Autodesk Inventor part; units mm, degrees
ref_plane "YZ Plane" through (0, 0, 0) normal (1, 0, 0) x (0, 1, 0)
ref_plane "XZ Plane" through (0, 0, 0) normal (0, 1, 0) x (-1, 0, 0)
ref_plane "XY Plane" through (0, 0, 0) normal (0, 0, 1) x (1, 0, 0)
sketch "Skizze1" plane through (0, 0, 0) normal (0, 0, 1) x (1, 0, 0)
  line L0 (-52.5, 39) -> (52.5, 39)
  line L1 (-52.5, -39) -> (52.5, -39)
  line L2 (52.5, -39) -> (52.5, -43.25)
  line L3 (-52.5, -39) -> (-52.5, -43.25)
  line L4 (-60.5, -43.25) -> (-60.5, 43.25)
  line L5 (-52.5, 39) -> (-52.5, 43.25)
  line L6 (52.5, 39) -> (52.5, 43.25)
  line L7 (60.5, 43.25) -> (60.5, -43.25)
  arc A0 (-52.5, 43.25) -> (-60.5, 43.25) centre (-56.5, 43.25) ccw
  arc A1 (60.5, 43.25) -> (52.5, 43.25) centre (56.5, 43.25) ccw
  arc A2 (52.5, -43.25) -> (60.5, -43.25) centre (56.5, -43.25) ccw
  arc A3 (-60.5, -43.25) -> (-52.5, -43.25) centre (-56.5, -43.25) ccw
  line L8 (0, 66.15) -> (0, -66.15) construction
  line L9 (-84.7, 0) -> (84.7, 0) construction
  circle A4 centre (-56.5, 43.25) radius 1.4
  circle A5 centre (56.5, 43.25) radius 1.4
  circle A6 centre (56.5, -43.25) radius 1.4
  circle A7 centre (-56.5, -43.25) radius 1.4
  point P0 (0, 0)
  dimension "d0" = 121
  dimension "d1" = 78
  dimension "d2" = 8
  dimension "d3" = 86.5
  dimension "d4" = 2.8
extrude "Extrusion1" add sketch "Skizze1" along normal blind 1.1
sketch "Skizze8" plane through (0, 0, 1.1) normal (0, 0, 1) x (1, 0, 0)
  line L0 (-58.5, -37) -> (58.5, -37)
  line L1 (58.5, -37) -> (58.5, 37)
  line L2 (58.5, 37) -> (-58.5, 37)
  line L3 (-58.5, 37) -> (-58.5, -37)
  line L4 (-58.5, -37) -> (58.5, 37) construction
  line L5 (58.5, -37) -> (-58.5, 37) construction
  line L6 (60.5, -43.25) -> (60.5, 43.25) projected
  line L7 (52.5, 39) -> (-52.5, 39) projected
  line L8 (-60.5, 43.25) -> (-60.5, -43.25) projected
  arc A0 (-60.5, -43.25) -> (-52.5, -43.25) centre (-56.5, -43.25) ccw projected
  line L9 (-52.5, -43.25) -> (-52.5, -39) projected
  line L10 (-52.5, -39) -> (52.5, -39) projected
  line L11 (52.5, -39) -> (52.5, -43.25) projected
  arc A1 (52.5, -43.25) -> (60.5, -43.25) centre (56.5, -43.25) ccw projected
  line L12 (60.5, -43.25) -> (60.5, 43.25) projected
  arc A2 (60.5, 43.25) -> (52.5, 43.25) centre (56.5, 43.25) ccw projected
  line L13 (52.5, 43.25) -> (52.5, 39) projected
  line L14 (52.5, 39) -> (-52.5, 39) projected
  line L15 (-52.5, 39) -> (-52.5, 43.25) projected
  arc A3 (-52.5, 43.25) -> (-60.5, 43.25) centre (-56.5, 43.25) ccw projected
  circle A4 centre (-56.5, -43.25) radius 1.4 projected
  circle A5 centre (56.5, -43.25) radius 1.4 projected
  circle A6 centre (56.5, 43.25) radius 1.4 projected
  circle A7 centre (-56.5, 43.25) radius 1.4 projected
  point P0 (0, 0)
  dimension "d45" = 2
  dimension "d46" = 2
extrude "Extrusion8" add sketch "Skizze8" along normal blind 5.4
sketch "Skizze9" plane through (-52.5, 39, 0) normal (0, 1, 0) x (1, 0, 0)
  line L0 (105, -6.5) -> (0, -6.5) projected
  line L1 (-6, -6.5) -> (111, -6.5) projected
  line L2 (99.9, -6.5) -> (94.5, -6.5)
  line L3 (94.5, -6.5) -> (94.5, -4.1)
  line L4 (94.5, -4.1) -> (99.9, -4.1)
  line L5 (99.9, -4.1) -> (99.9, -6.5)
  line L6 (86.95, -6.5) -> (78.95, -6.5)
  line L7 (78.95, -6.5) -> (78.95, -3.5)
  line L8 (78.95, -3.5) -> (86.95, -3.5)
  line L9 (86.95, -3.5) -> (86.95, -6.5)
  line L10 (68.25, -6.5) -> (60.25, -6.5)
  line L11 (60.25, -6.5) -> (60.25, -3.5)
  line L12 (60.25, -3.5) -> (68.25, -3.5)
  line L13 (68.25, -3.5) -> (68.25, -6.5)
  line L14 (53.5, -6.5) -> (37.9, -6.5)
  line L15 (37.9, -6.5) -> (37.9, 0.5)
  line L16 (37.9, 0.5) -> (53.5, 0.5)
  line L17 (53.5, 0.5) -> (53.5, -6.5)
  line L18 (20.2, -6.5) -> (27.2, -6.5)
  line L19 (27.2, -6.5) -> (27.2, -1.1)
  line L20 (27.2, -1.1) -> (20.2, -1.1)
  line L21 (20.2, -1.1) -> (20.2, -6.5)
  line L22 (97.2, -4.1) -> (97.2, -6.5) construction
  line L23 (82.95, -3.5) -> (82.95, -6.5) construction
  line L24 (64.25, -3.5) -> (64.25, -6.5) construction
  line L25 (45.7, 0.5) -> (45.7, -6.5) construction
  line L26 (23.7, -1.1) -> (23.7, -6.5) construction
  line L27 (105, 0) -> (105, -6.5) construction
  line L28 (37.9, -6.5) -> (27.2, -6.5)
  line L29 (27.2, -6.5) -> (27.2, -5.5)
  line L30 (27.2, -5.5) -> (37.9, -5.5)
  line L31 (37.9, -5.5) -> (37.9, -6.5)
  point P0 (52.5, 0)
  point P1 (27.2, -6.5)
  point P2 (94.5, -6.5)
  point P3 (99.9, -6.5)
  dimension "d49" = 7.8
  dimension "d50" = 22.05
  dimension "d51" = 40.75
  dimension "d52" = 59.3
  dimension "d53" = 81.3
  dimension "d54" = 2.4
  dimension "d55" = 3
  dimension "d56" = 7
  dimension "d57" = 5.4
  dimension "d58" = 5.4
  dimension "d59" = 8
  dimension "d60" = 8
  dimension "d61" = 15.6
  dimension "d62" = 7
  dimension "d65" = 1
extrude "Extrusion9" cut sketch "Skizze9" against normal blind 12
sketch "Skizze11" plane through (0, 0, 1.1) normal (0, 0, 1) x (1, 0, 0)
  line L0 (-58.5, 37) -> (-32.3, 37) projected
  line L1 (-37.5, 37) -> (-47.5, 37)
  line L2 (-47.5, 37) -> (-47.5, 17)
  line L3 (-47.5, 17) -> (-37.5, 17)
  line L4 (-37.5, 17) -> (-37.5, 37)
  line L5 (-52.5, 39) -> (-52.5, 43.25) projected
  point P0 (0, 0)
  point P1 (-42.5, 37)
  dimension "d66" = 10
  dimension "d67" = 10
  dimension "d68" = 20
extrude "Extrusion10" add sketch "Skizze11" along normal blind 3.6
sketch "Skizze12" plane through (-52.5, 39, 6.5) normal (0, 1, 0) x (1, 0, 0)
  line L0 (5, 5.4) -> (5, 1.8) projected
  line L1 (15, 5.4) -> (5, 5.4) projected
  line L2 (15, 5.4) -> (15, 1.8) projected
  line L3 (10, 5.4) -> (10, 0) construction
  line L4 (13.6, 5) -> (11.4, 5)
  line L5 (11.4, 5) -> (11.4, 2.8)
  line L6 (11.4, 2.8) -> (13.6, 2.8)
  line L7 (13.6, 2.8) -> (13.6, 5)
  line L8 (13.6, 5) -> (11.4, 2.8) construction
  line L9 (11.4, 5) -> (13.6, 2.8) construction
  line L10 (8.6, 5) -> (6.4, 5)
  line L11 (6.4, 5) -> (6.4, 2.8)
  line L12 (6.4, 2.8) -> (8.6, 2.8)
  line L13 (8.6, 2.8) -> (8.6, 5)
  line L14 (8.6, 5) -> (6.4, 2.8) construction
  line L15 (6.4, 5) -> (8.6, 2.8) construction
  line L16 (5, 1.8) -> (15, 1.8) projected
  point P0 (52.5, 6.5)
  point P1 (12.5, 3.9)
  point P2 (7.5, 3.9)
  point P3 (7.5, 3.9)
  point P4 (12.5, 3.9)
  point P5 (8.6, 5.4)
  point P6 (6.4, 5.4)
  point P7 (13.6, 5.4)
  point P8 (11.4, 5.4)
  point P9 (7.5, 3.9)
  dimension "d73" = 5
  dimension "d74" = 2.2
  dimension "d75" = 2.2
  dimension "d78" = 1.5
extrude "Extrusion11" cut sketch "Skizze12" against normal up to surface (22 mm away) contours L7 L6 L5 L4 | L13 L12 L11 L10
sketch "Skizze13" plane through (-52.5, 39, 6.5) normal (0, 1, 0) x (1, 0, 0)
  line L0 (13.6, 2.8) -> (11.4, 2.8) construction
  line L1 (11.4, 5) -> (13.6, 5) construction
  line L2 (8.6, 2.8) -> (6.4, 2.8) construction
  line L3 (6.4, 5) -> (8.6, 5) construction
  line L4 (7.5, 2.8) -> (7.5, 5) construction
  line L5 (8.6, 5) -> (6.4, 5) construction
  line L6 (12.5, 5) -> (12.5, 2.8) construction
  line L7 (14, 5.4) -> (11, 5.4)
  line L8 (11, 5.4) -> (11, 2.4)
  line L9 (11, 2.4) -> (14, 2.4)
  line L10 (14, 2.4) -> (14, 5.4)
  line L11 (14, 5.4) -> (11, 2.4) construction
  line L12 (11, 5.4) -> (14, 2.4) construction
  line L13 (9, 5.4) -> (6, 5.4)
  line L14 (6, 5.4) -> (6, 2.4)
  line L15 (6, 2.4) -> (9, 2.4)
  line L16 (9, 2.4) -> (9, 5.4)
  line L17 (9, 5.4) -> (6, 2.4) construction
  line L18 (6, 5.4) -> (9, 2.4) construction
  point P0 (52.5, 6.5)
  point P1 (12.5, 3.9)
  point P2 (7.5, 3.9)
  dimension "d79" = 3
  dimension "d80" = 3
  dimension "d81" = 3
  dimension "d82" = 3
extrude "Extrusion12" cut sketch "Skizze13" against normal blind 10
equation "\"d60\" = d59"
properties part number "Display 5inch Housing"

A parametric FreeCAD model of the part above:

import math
import FreeCAD as App
import Part
import Sketcher
Q = App.Units.Quantity

doc = App.newDocument("Part")
params = doc.addObject("Spreadsheet::Sheet", "Params")
for row, (alias, value) in enumerate([
    ("sketch1_radius", "4 mm"),
    ("sketch1_diameter", "2.8 mm"),
    ("sketch1_height", "86.5 mm"),
    ("sketch1_width", "105 mm"),
    ("pad1_length", "1.1 mm"),
    ("sketch2_radius", "4 mm"),
    ("sketch2_diameter", "2.8 mm"),
    ("sketch2_width", "105 mm"),
    ("sketch2_height", "74 mm"),
    ("sketch2_height2", "86.5 mm"),
    ("pad2_length", "5.4 mm"),
    ("sketch3_width", "7 mm"),
    ("sketch3_width2", "8 mm"),
    ("sketch3_height", "3 mm"),
    ("sketch3_width3", "15.6 mm"),
    ("sketch3_width4", "5.4 mm"),
    ("pocket1_length", "12 mm"),
    ("sketch4_width", "10 mm"),
    ("sketch4_height", "20 mm"),
    ("pad3_length", "3.6 mm"),
    ("sketch5_width", "2.2 mm"),
    ("pocket2_length", "22 mm"),
    ("sketch6_width", "3 mm"),
    ("pocket3_length", "10 mm"),
], start=1):
    params.set(f"A{row}", alias)
    params.set(f"B{row}", "=" + value)
    params.setAlias(f"B{row}", alias)

body = doc.addObject("PartDesign::Body", "Body")

sketch1 = body.newObject("Sketcher::SketchObject", "Sketch")
sketch1.AttachmentSupport = (doc.getObject("XY_Plane"), [""])
sketch1.MapMode = "FlatFace"
sketch1.addGeometry([
    Part.LineSegment(App.Vector(52.5, 39, 0), App.Vector(-52.5, 39, 0)),
    Part.LineSegment(App.Vector(-52.5, 39, 0), App.Vector(-52.5, 43.2, 0)),
    Part.ArcOfCircle(Part.Circle(App.Vector(-56.5, 43.2, 0), App.Vector(0, 0, 1), 4), math.radians(0), math.radians(180)),
    Part.LineSegment(App.Vector(-60.5, 43.2, 0), App.Vector(-60.5, -43.2, 0)),
    Part.ArcOfCircle(Part.Circle(App.Vector(-56.5, -43.2, 0), App.Vector(0, 0, 1), 4), math.radians(180), math.radians(360)),
    Part.LineSegment(App.Vector(-52.5, -43.2, 0), App.Vector(-52.5, -39, 0)),
    Part.LineSegment(App.Vector(-52.5, -39, 0), App.Vector(52.5, -39, 0)),
    Part.LineSegment(App.Vector(52.5, -39, 0), App.Vector(52.5, -43.2, 0)),
    Part.ArcOfCircle(Part.Circle(App.Vector(56.5, -43.2, 0), App.Vector(0, 0, 1), 4), math.radians(180), math.radians(360)),
    Part.LineSegment(App.Vector(60.5, -43.2, 0), App.Vector(60.5, 43.2, 0)),
    Part.ArcOfCircle(Part.Circle(App.Vector(56.5, 43.2, 0), App.Vector(0, 0, 1), 4), math.radians(0), math.radians(180)),
    Part.LineSegment(App.Vector(52.5, 43.2, 0), App.Vector(52.5, 39, 0)),
    Part.Circle(App.Vector(-56.5, -43.2, 0), App.Vector(0, 0, 1), 1.4),
    Part.Circle(App.Vector(56.5, -43.2, 0), App.Vector(0, 0, 1), 1.4),
    Part.Circle(App.Vector(-56.5, 43.2, 0), App.Vector(0, 0, 1), 1.4),
    Part.Circle(App.Vector(56.5, 43.2, 0), App.Vector(0, 0, 1), 1.4),
], False)
sketch1.addConstraint([
    Sketcher.Constraint("Coincident", 0, 2, 1, 1),
    Sketcher.Constraint("Tangent", 1, 2, 2, 1),
    Sketcher.Constraint("Tangent", 2, 2, 3, 1),
    Sketcher.Constraint("Tangent", 3, 2, 4, 1),
    Sketcher.Constraint("Tangent", 4, 2, 5, 1),
    Sketcher.Constraint("Coincident", 5, 2, 6, 1),
    Sketcher.Constraint("Coincident", 6, 2, 7, 1),
    Sketcher.Constraint("Tangent", 7, 2, 8, 1),
    Sketcher.Constraint("Tangent", 8, 2, 9, 1),
    Sketcher.Constraint("Tangent", 9, 2, 10, 1),
    Sketcher.Constraint("Tangent", 10, 2, 11, 1),
    Sketcher.Constraint("Coincident", 11, 2, 0, 1),
    Sketcher.Constraint("Horizontal", 0),
    Sketcher.Constraint("Vertical", 1),
    Sketcher.Constraint("Vertical", 3),
    Sketcher.Constraint("Vertical", 5),
    Sketcher.Constraint("Horizontal", 6),
    Sketcher.Constraint("Vertical", 7),
    Sketcher.Constraint("Vertical", 9),
    Sketcher.Constraint("Vertical", 11),
    Sketcher.Constraint("Coincident", 12, 3, 4, 3),
    Sketcher.Constraint("Coincident", 13, 3, 8, 3),
    Sketcher.Constraint("Coincident", 14, 3, 2, 3),
    Sketcher.Constraint("Coincident", 15, 3, 10, 3),
    Sketcher.Constraint("Equal", 2, 4),
    Sketcher.Constraint("Equal", 4, 8),
    Sketcher.Constraint("Equal", 8, 10),
    Sketcher.Constraint("Equal", 12, 13),
    Sketcher.Constraint("Equal", 13, 14),
    Sketcher.Constraint("Equal", 14, 15),
    Sketcher.Constraint("Symmetric", 2, 3, 8, 3, -1, 1),
    Sketcher.Constraint("Horizontal", 4, 3, 8, 3),
    Sketcher.Constraint("Horizontal", 2, 3, 10, 3),
    Sketcher.Constraint("Equal", 1, 5),
    Sketcher.Constraint("Radius", 2, Q("4 mm")),
    Sketcher.Constraint("Diameter", 12, Q("2.8 mm")),
    Sketcher.Constraint("DistanceY", 3, 2, 3, 1, Q("86.5 mm")),
    Sketcher.Constraint("DistanceY", 5, 2, 0, 2, Q("78 mm")),
    Sketcher.Constraint("DistanceX", 0, 2, 0, 1, Q("105 mm")),
])
sketch1.setExpression("Constraints[34]", "Params.sketch1_radius")
sketch1.setExpression("Constraints[35]", "Params.sketch1_diameter")
sketch1.setExpression("Constraints[36]", "Params.sketch1_height")
sketch1.setExpression("Constraints[38]", "Params.sketch1_width")
pad1 = body.newObject("PartDesign::Pad", "Pad")
pad1.Profile = sketch1
pad1.setExpression("Length", "Params.pad1_length")

sketch2 = body.newObject("Sketcher::SketchObject", "Sketch001")
sketch2.AttachmentSupport = (doc.getObject("XY_Plane"), [""])
sketch2.MapMode = "FlatFace"
sketch2.AttachmentOffset = App.Placement(App.Vector(0, 0, 1.1), App.Rotation())
sketch2.addGeometry([
    Part.ArcOfCircle(Part.Circle(App.Vector(56.5, -43.2, 0), App.Vector(0, 0, 1), 4), math.radians(180), math.radians(360)),
    Part.LineSegment(App.Vector(60.5, -43.2, 0), App.Vector(60.5, 43.2, 0)),
    Part.ArcOfCircle(Part.Circle(App.Vector(56.5, 43.2, 0), App.Vector(0, 0, 1), 4), math.radians(0), math.radians(180)),
    Part.LineSegment(App.Vector(52.5, 43.2, 0), App.Vector(52.5, 39, 0)),
    Part.LineSegment(App.Vector(52.5, 39, 0), App.Vector(-52.5, 39, 0)),
    Part.LineSegment(App.Vector(-52.5, 39, 0), App.Vector(-52.5, 43.2, 0)),
    Part.ArcOfCircle(Part.Circle(App.Vector(-56.5, 43.2, 0), App.Vector(0, 0, 1), 4), math.radians(0), math.radians(180)),
    Part.LineSegment(App.Vector(-60.5, 43.2, 0), App.Vector(-60.5, -43.2, 0)),
    Part.ArcOfCircle(Part.Circle(App.Vector(-56.5, -43.2, 0), App.Vector(0, 0, 1), 4), math.radians(180), math.radians(360)),
    Part.LineSegment(App.Vector(-52.5, -43.2, 0), App.Vector(-52.5, -39, 0)),
    Part.LineSegment(App.Vector(-52.5, -39, 0), App.Vector(52.5, -39, 0)),
    Part.LineSegment(App.Vector(52.5, -39, 0), App.Vector(52.5, -43.2, 0)),
    Part.Circle(App.Vector(-56.5, -43.2, 0), App.Vector(0, 0, 1), 1.4),
    Part.Circle(App.Vector(56.5, -43.2, 0), App.Vector(0, 0, 1), 1.4),
    Part.Circle(App.Vector(-56.5, 43.2, 0), App.Vector(0, 0, 1), 1.4),
    Part.LineSegment(App.Vector(58.5, -37, 0), App.Vector(-58.5, -37, 0)),
    Part.LineSegment(App.Vector(-58.5, -37, 0), App.Vector(-58.5, 37, 0)),
    Part.LineSegment(App.Vector(-58.5, 37, 0), App.Vector(58.5, 37, 0)),
    Part.LineSegment(App.Vector(58.5, 37, 0), App.Vector(58.5, -37, 0)),
    Part.Circle(App.Vector(56.5, 43.2, 0), App.Vector(0, 0, 1), 1.4),
], False)
sketch2.addConstraint([
    Sketcher.Constraint("Tangent", 0, 2, 1, 1),
    Sketcher.Constraint("Tangent", 1, 2, 2, 1),
    Sketcher.Constraint("Tangent", 2, 2, 3, 1),
    Sketcher.Constraint("Coincident", 3, 2, 4, 1),
    Sketcher.Constraint("Coincident", 4, 2, 5, 1),
    Sketcher.Constraint("Tangent", 5, 2, 6, 1),
    Sketcher.Constraint("Tangent", 6, 2, 7, 1),
    Sketcher.Constraint("Tangent", 7, 2, 8, 1),
    Sketcher.Constraint("Tangent", 8, 2, 9, 1),
    Sketcher.Constraint("Coincident", 9, 2, 10, 1),
    Sketcher.Constraint("Coincident", 10, 2, 11, 1),
    Sketcher.Constraint("Tangent", 11, 2, 0, 1),
    Sketcher.Constraint("Coincident", 15, 2, 16, 1),
    Sketcher.Constraint("Coincident", 16, 2, 17, 1),
    Sketcher.Constraint("Coincident", 17, 2, 18, 1),
    Sketcher.Constraint("Coincident", 18, 2, 15, 1),
    Sketcher.Constraint("Vertical", 1),
    Sketcher.Constraint("Vertical", 3),
    Sketcher.Constraint("Horizontal", 4),
    Sketcher.Constraint("Vertical", 5),
    Sketcher.Constraint("Vertical", 7),
    Sketcher.Constraint("Vertical", 9),
    Sketcher.Constraint("Horizontal", 10),
    Sketcher.Constraint("Vertical", 11),
    Sketcher.Constraint("Horizontal", 15),
    Sketcher.Constraint("Vertical", 16),
    Sketcher.Constraint("Horizontal", 17),
    Sketcher.Constraint("Vertical", 18),
    Sketcher.Constraint("Coincident", 12, 3, 8, 3),
    Sketcher.Constraint("Coincident", 13, 3, 0, 3),
    Sketcher.Constraint("Coincident", 14, 3, 6, 3),
    Sketcher.Constraint("Coincident", 19, 3, 2, 3),
    Sketcher.Constraint("Equal", 0, 2),
    Sketcher.Constraint("Equal", 2, 6),
    Sketcher.Constraint("Equal", 6, 8),
    Sketcher.Constraint("Equal", 12, 13),
    Sketcher.Constraint("Equal", 13, 14),
    Sketcher.Constraint("Equal", 14, 19),
    Sketcher.Constraint("Symmetric", 0, 3, 6, 3, -1, 1),
    Sketcher.Constraint("Symmetric", 15, 2, 17, 2, -1, 1),
    Sketcher.Constraint("Horizontal", 2, 3, 6, 3),
    Sketcher.Constraint("Horizontal", 0, 3, 8, 3),
    Sketcher.Constraint("Equal", 5, 9),
    Sketcher.Constraint("Radius", 0, Q("4 mm")),
    Sketcher.Constraint("DistanceY", 9, 2, 15, 2, Q("2 mm")),
    Sketcher.Constraint("DistanceX", 15, 2, 8, 3, Q("2 mm")),
    Sketcher.Constraint("Diameter", 12, Q("2.8 mm")),
    Sketcher.Constraint("DistanceX", 4, 2, 4, 1, Q("105 mm")),
    Sketcher.Constraint("DistanceY", 16, 1, 16, 2, Q("74 mm")),
    Sketcher.Constraint("DistanceY", 1, 1, 1, 2, Q("86.5 mm")),
])
sketch2.setExpression("Constraints[43]", "Params.sketch2_radius")
sketch2.setExpression("Constraints[46]", "Params.sketch2_diameter")
sketch2.setExpression("Constraints[47]", "Params.sketch2_width")
sketch2.setExpression("Constraints[48]", "Params.sketch2_height")
sketch2.setExpression("Constraints[49]", "Params.sketch2_height2")
pad2 = body.newObject("PartDesign::Pad", "Pad001")
pad2.Profile = sketch2
pad2.setExpression("Length", "Params.pad2_length")

sketch3 = body.newObject("Sketcher::SketchObject", "Sketch002")
sketch3.AttachmentSupport = (doc.getObject("XZ_Plane"), [""])
sketch3.MapMode = "FlatFace"
sketch3.AttachmentOffset = App.Placement(App.Vector(0, 0, -39), App.Rotation())
sketch3.addGeometry([
    Part.LineSegment(App.Vector(1, 6.5, 0), App.Vector(1, -0.5, 0)),
    Part.LineSegment(App.Vector(1, -0.5, 0), App.Vector(-14.6, -0.5, 0)),
    Part.LineSegment(App.Vector(-14.6, -0.5, 0), App.Vector(-14.6, 5.5, 0)),
    Part.LineSegment(App.Vector(-14.6, 5.5, 0), App.Vector(-25.3, 5.5, 0)),
    Part.LineSegment(App.Vector(-25.3, 5.5, 0), App.Vector(-25.3, 1.1, 0)),
    Part.LineSegment(App.Vector(-25.3, 1.1, 0), App.Vector(-32.3, 1.1, 0)),
    Part.LineSegment(App.Vector(-32.3, 1.1, 0), App.Vector(-32.3, 6.5, 0)),
    Part.LineSegment(App.Vector(-32.3, 6.5, 0), App.Vector(1, 6.5, 0)),
    Part.LineSegment(App.Vector(7.8, 6.5, 0), App.Vector(15.8, 6.5, 0)),
    Part.LineSegment(App.Vector(15.8, 6.5, 0), App.Vector(15.8, 3.5, 0)),
    Part.LineSegment(App.Vector(15.8, 3.5, 0), App.Vector(7.8, 3.5, 0)),
    Part.LineSegment(App.Vector(7.8, 3.5, 0), App.Vector(7.8, 6.5, 0)),
    Part.LineSegment(App.Vector(26.4, 6.5, 0), App.Vector(34.5, 6.5, 0)),
    Part.LineSegment(App.Vector(34.5, 6.5, 0), App.Vector(34.5, 3.5, 0)),
    Part.LineSegment(App.Vector(34.5, 3.5, 0), App.Vector(26.4, 3.5, 0)),
    Part.LineSegment(App.Vector(26.4, 3.5, 0), App.Vector(26.4, 6.5, 0)),
    Part.LineSegment(App.Vector(42, 6.5, 0), App.Vector(47.4, 6.5, 0)),
    Part.LineSegment(App.Vector(47.4, 6.5, 0), App.Vector(47.4, 4.1, 0)),
    Part.LineSegment(App.Vector(47.4, 4.1, 0), App.Vector(42, 4.1, 0)),
    Part.LineSegment(App.Vector(42, 4.1, 0), App.Vector(42, 6.5, 0)),
], False)
sketch3.addConstraint([
    Sketcher.Constraint("Coincident", 0, 2, 1, 1),
    Sketcher.Constraint("Coincident", 1, 2, 2, 1),
    Sketcher.Constraint("Coincident", 2, 2, 3, 1),
    Sketcher.Constraint("Coincident", 3, 2, 4, 1),
    Sketcher.Constraint("Coincident", 4, 2, 5, 1),
    Sketcher.Constraint("Coincident", 5, 2, 6, 1),
    Sketcher.Constraint("Coincident", 6, 2, 7, 1),
    Sketcher.Constraint("Coincident", 7, 2, 0, 1),
    Sketcher.Constraint("Coincident", 8, 2, 9, 1),
    Sketcher.Constraint("Coincident", 9, 2, 10, 1),
    Sketcher.Constraint("Coincident", 10, 2, 11, 1),
    Sketcher.Constraint("Coincident", 11, 2, 8, 1),
    Sketcher.Constraint("Coincident", 12, 2, 13, 1),
    Sketcher.Constraint("Coincident", 13, 2, 14, 1),
    Sketcher.Constraint("Coincident", 14, 2, 15, 1),
    Sketcher.Constraint("Coincident", 15, 2, 12, 1),
    Sketcher.Constraint("Coincident", 16, 2, 17, 1),
    Sketcher.Constraint("Coincident", 17, 2, 18, 1),
    Sketcher.Constraint("Coincident", 18, 2, 19, 1),
    Sketcher.Constraint("Coincident", 19, 2, 16, 1),
    Sketcher.Constraint("Vertical", 0),
    Sketcher.Constraint("Horizontal", 1),
    Sketcher.Constraint("Vertical", 2),
    Sketcher.Constraint("Horizontal", 3),
    Sketcher.Constraint("Vertical", 4),
    Sketcher.Constraint("Horizontal", 5),
    Sketcher.Constraint("Vertical", 6),
    Sketcher.Constraint("Horizontal", 7),
    Sketcher.Constraint("Horizontal", 8),
    Sketcher.Constraint("Vertical", 9),
    Sketcher.Constraint("Horizontal", 10),
    Sketcher.Constraint("Vertical", 11),
    Sketcher.Constraint("Horizontal", 12),
    Sketcher.Constraint("Vertical", 13),
    Sketcher.Constraint("Horizontal", 14),
    Sketcher.Constraint("Vertical", 15),
    Sketcher.Constraint("Horizontal", 16),
    Sketcher.Constraint("Vertical", 17),
    Sketcher.Constraint("Horizontal", 18),
    Sketcher.Constraint("Vertical", 19),
    Sketcher.Constraint("Horizontal", 7, 2, 8, 2),
    Sketcher.Constraint("Horizontal", 11, 2, 12, 2),
    Sketcher.Constraint("Horizontal", 10, 2, 13, 2),
    Sketcher.Constraint("Horizontal", 15, 2, 16, 2),
    Sketcher.Constraint("Equal", 10, 12),
    Sketcher.Constraint("Equal", 5, 0),
    Sketcher.Constraint("Equal", 18, 6),
    Sketcher.Constraint("DistanceX", 5, 2, 5, 1, Q("7 mm")),
    Sketcher.Constraint("DistanceX", 8, 1, 8, 2, Q("8 mm")),
    Sketcher.Constraint("DistanceY", 9, 2, 9, 1, Q("3 mm")),
    Sketcher.Constraint("DistanceX", 1, 2, 1, 1, Q("15.6 mm")),
    Sketcher.Constraint("DistanceX", 16, 1, 16, 2, Q("5.4 mm")),
    Sketcher.Constraint("DistanceY", 17, 2, 17, 1, Q("2.4 mm")),
    Sketcher.Constraint("DistanceX", -1, 1, 0, 2, Q("1 mm")),
    Sketcher.Constraint("DistanceY", 3, 2, 6, 2, Q("1 mm")),
    Sketcher.Constraint("DistanceX", 3, 2, 3, 1, Q("10.7 mm")),
    Sketcher.Constraint("DistanceX", -1, 1, 18, 2, Q("42 mm")),
    Sketcher.Constraint("DistanceY", 0, 2, -1, 1, Q("0.5 mm")),
    Sketcher.Constraint("DistanceX", 8, 2, 12, 2, Q("18.7 mm")),
    Sketcher.Constraint("DistanceX", -1, 1, 8, 2, Q("15.75 mm")),
])
sketch3.setExpression("Constraints[47]", "Params.sketch3_width")
sketch3.setExpression("Constraints[48]", "Params.sketch3_width2")
sketch3.setExpression("Constraints[49]", "Params.sketch3_height")
sketch3.setExpression("Constraints[50]", "Params.sketch3_width3")
sketch3.setExpression("Constraints[51]", "Params.sketch3_width4")
pocket1 = body.newObject("PartDesign::Pocket", "Pocket")
pocket1.Profile = sketch3
pocket1.setExpression("Length", "Params.pocket1_length")
pocket1.Reversed = True

sketch4 = body.newObject("Sketcher::SketchObject", "Sketch003")
sketch4.AttachmentSupport = (doc.getObject("XY_Plane"), [""])
sketch4.MapMode = "FlatFace"
sketch4.AttachmentOffset = App.Placement(App.Vector(0, 0, 1.1), App.Rotation())
sketch4.addGeometry([
    Part.LineSegment(App.Vector(-38, 37, 0), App.Vector(-48, 37, 0)),
    Part.LineSegment(App.Vector(-48, 37, 0), App.Vector(-48, 17, 0)),
    Part.LineSegment(App.Vector(-48, 17, 0), App.Vector(-38, 17, 0)),
    Part.LineSegment(App.Vector(-38, 17, 0), App.Vector(-38, 37, 0)),
], False)
sketch4.addConstraint([
    Sketcher.Constraint("Coincident", 0, 2, 1, 1),
    Sketcher.Constraint("Coincident", 1, 2, 2, 1),
    Sketcher.Constraint("Coincident", 2, 2, 3, 1),
    Sketcher.Constraint("Coincident", 3, 2, 0, 1),
    Sketcher.Constraint("Horizontal", 0),
    Sketcher.Constraint("Vertical", 1),
    Sketcher.Constraint("Horizontal", 2),
    Sketcher.Constraint("Vertical", 3),
    Sketcher.Constraint("DistanceX", 0, 2, 0, 1, Q("10 mm")),
    Sketcher.Constraint("DistanceY", 1, 2, 1, 1, Q("20 mm")),
    Sketcher.Constraint("DistanceY", -1, 1, 0, 2, Q("37 mm")),
    Sketcher.Constraint("DistanceX", 0, 2, -1, 1, Q("47.5 mm")),
])
sketch4.setExpression("Constraints[8]", "Params.sketch4_width")
sketch4.setExpression("Constraints[9]", "Params.sketch4_height")
pad3 = body.newObject("PartDesign::Pad", "Pad002")
pad3.Profile = sketch4
pad3.setExpression("Length", "Params.pad3_length")

sketch5 = body.newObject("Sketcher::SketchObject", "Sketch004")
sketch5.AttachmentSupport = (doc.getObject("XZ_Plane"), [""])
sketch5.MapMode = "FlatFace"
sketch5.AttachmentOffset = App.Placement(App.Vector(0, 0, -39), App.Rotation())
sketch5.addGeometry([
    Part.LineSegment(App.Vector(-38.9, 3.7, 0), App.Vector(-38.9, 1.5, 0)),
    Part.LineSegment(App.Vector(-38.9, 1.5, 0), App.Vector(-41.1, 1.5, 0)),
    Part.LineSegment(App.Vector(-41.1, 1.5, 0), App.Vector(-41.1, 3.7, 0)),
    Part.LineSegment(App.Vector(-41.1, 3.7, 0), App.Vector(-38.9, 3.7, 0)),
    Part.LineSegment(App.Vector(-43.9, 3.7, 0), App.Vector(-43.9, 1.5, 0)),
    Part.LineSegment(App.Vector(-43.9, 1.5, 0), App.Vector(-46.1, 1.5, 0)),
    Part.LineSegment(App.Vector(-46.1, 1.5, 0), App.Vector(-46.1, 3.7, 0)),
    Part.LineSegment(App.Vector(-46.1, 3.7, 0), App.Vector(-43.9, 3.7, 0)),
], False)
sketch5.addConstraint([
    Sketcher.Constraint("Coincident", 0, 2, 1, 1),
    Sketcher.Constraint("Coincident", 1, 2, 2, 1),
    Sketcher.Constraint("Coincident", 2, 2, 3, 1),
    Sketcher.Constraint("Coincident", 3, 2, 0, 1),
    Sketcher.Constraint("Coincident", 4, 2, 5, 1),
    Sketcher.Constraint("Coincident", 5, 2, 6, 1),
    Sketcher.Constraint("Coincident", 6, 2, 7, 1),
    Sketcher.Constraint("Coincident", 7, 2, 4, 1),
    Sketcher.Constraint("Vertical", 0),
    Sketcher.Constraint("Horizontal", 1),
    Sketcher.Constraint("Vertical", 2),
    Sketcher.Constraint("Horizontal", 3),
    Sketcher.Constraint("Vertical", 4),
    Sketcher.Constraint("Horizontal", 5),
    Sketcher.Constraint("Vertical", 6),
    Sketcher.Constraint("Horizontal", 7),
    Sketcher.Constraint("Horizontal", 1, 2, 4, 2),
    Sketcher.Constraint("Horizontal", 3, 2, 6, 2),
    Sketcher.Constraint("Equal", 3, 5),
    Sketcher.Constraint("Equal", 7, 0),
    Sketcher.Constraint("DistanceX", 1, 2, 1, 1, Q("2.2 mm")),
    Sketcher.Constraint("DistanceX", 4, 2, 0, 2, Q("5 mm")),
    Sketcher.Constraint("DistanceY", -1, 1, 0, 2, Q("1.5 mm")),
    Sketcher.Constraint("DistanceX", 0, 2, -1, 1, Q("38.9 mm")),
])
sketch5.setExpression("Constraints[20]", "Params.sketch5_width")
pocket2 = body.newObject("PartDesign::Pocket", "Pocket001")
pocket2.Profile = sketch5
pocket2.setExpression("Length", "Params.pocket2_length")
pocket2.Reversed = True

sketch6 = body.newObject("Sketcher::SketchObject", "Sketch005")
sketch6.AttachmentSupport = (doc.getObject("XZ_Plane"), [""])
sketch6.MapMode = "FlatFace"
sketch6.AttachmentOffset = App.Placement(App.Vector(0, 0, -39), App.Rotation())
sketch6.addGeometry([
    Part.LineSegment(App.Vector(-38.5, 4.1, 0), App.Vector(-38.5, 1.1, 0)),
    Part.LineSegment(App.Vector(-38.5, 1.1, 0), App.Vector(-41.5, 1.1, 0)),
    Part.LineSegment(App.Vector(-41.5, 1.1, 0), App.Vector(-41.5, 4.1, 0)),
    Part.LineSegment(App.Vector(-41.5, 4.1, 0), App.Vector(-38.5, 4.1, 0)),
    Part.LineSegment(App.Vector(-43.5, 4.1, 0), App.Vector(-43.5, 1.1, 0)),
    Part.LineSegment(App.Vector(-43.5, 1.1, 0), App.Vector(-46.5, 1.1, 0)),
    Part.LineSegment(App.Vector(-46.5, 1.1, 0), App.Vector(-46.5, 4.1, 0)),
    Part.LineSegment(App.Vector(-46.5, 4.1, 0), App.Vector(-43.5, 4.1, 0)),
], False)
sketch6.addConstraint([
    Sketcher.Constraint("Coincident", 0, 2, 1, 1),
    Sketcher.Constraint("Coincident", 1, 2, 2, 1),
    Sketcher.Constraint("Coincident", 2, 2, 3, 1),
    Sketcher.Constraint("Coincident", 3, 2, 0, 1),
    Sketcher.Constraint("Coincident", 4, 2, 5, 1),
    Sketcher.Constraint("Coincident", 5, 2, 6, 1),
    Sketcher.Constraint("Coincident", 6, 2, 7, 1),
    Sketcher.Constraint("Coincident", 7, 2, 4, 1),
    Sketcher.Constraint("Vertical", 0),
    Sketcher.Constraint("Horizontal", 1),
    Sketcher.Constraint("Vertical", 2),
    Sketcher.Constraint("Horizontal", 3),
    Sketcher.Constraint("Vertical", 4),
    Sketcher.Constraint("Horizontal", 5),
    Sketcher.Constraint("Vertical", 6),
    Sketcher.Constraint("Horizontal", 7),
    Sketcher.Constraint("Horizontal", 1, 2, 4, 2),
    Sketcher.Constraint("Horizontal", 3, 2, 6, 2),
    Sketcher.Constraint("Equal", 3, 5),
    Sketcher.Constraint("Equal", 7, 0),
    Sketcher.Constraint("DistanceX", 1, 2, 1, 1, Q("3 mm")),
    Sketcher.Constraint("DistanceX", 4, 2, 1, 2, Q("2 mm")),
    Sketcher.Constraint("DistanceX", 0, 2, -1, 1, Q("38.5 mm")),
    Sketcher.Constraint("DistanceY", -1, 1, 0, 2, Q("1.1 mm")),
])
sketch6.setExpression("Constraints[20]", "Params.sketch6_width")
pocket3 = body.newObject("PartDesign::Pocket", "Pocket002")
pocket3.Profile = sketch6
pocket3.setExpression("Length", "Params.pocket3_length")
pocket3.Reversed = True

doc.recompute()
